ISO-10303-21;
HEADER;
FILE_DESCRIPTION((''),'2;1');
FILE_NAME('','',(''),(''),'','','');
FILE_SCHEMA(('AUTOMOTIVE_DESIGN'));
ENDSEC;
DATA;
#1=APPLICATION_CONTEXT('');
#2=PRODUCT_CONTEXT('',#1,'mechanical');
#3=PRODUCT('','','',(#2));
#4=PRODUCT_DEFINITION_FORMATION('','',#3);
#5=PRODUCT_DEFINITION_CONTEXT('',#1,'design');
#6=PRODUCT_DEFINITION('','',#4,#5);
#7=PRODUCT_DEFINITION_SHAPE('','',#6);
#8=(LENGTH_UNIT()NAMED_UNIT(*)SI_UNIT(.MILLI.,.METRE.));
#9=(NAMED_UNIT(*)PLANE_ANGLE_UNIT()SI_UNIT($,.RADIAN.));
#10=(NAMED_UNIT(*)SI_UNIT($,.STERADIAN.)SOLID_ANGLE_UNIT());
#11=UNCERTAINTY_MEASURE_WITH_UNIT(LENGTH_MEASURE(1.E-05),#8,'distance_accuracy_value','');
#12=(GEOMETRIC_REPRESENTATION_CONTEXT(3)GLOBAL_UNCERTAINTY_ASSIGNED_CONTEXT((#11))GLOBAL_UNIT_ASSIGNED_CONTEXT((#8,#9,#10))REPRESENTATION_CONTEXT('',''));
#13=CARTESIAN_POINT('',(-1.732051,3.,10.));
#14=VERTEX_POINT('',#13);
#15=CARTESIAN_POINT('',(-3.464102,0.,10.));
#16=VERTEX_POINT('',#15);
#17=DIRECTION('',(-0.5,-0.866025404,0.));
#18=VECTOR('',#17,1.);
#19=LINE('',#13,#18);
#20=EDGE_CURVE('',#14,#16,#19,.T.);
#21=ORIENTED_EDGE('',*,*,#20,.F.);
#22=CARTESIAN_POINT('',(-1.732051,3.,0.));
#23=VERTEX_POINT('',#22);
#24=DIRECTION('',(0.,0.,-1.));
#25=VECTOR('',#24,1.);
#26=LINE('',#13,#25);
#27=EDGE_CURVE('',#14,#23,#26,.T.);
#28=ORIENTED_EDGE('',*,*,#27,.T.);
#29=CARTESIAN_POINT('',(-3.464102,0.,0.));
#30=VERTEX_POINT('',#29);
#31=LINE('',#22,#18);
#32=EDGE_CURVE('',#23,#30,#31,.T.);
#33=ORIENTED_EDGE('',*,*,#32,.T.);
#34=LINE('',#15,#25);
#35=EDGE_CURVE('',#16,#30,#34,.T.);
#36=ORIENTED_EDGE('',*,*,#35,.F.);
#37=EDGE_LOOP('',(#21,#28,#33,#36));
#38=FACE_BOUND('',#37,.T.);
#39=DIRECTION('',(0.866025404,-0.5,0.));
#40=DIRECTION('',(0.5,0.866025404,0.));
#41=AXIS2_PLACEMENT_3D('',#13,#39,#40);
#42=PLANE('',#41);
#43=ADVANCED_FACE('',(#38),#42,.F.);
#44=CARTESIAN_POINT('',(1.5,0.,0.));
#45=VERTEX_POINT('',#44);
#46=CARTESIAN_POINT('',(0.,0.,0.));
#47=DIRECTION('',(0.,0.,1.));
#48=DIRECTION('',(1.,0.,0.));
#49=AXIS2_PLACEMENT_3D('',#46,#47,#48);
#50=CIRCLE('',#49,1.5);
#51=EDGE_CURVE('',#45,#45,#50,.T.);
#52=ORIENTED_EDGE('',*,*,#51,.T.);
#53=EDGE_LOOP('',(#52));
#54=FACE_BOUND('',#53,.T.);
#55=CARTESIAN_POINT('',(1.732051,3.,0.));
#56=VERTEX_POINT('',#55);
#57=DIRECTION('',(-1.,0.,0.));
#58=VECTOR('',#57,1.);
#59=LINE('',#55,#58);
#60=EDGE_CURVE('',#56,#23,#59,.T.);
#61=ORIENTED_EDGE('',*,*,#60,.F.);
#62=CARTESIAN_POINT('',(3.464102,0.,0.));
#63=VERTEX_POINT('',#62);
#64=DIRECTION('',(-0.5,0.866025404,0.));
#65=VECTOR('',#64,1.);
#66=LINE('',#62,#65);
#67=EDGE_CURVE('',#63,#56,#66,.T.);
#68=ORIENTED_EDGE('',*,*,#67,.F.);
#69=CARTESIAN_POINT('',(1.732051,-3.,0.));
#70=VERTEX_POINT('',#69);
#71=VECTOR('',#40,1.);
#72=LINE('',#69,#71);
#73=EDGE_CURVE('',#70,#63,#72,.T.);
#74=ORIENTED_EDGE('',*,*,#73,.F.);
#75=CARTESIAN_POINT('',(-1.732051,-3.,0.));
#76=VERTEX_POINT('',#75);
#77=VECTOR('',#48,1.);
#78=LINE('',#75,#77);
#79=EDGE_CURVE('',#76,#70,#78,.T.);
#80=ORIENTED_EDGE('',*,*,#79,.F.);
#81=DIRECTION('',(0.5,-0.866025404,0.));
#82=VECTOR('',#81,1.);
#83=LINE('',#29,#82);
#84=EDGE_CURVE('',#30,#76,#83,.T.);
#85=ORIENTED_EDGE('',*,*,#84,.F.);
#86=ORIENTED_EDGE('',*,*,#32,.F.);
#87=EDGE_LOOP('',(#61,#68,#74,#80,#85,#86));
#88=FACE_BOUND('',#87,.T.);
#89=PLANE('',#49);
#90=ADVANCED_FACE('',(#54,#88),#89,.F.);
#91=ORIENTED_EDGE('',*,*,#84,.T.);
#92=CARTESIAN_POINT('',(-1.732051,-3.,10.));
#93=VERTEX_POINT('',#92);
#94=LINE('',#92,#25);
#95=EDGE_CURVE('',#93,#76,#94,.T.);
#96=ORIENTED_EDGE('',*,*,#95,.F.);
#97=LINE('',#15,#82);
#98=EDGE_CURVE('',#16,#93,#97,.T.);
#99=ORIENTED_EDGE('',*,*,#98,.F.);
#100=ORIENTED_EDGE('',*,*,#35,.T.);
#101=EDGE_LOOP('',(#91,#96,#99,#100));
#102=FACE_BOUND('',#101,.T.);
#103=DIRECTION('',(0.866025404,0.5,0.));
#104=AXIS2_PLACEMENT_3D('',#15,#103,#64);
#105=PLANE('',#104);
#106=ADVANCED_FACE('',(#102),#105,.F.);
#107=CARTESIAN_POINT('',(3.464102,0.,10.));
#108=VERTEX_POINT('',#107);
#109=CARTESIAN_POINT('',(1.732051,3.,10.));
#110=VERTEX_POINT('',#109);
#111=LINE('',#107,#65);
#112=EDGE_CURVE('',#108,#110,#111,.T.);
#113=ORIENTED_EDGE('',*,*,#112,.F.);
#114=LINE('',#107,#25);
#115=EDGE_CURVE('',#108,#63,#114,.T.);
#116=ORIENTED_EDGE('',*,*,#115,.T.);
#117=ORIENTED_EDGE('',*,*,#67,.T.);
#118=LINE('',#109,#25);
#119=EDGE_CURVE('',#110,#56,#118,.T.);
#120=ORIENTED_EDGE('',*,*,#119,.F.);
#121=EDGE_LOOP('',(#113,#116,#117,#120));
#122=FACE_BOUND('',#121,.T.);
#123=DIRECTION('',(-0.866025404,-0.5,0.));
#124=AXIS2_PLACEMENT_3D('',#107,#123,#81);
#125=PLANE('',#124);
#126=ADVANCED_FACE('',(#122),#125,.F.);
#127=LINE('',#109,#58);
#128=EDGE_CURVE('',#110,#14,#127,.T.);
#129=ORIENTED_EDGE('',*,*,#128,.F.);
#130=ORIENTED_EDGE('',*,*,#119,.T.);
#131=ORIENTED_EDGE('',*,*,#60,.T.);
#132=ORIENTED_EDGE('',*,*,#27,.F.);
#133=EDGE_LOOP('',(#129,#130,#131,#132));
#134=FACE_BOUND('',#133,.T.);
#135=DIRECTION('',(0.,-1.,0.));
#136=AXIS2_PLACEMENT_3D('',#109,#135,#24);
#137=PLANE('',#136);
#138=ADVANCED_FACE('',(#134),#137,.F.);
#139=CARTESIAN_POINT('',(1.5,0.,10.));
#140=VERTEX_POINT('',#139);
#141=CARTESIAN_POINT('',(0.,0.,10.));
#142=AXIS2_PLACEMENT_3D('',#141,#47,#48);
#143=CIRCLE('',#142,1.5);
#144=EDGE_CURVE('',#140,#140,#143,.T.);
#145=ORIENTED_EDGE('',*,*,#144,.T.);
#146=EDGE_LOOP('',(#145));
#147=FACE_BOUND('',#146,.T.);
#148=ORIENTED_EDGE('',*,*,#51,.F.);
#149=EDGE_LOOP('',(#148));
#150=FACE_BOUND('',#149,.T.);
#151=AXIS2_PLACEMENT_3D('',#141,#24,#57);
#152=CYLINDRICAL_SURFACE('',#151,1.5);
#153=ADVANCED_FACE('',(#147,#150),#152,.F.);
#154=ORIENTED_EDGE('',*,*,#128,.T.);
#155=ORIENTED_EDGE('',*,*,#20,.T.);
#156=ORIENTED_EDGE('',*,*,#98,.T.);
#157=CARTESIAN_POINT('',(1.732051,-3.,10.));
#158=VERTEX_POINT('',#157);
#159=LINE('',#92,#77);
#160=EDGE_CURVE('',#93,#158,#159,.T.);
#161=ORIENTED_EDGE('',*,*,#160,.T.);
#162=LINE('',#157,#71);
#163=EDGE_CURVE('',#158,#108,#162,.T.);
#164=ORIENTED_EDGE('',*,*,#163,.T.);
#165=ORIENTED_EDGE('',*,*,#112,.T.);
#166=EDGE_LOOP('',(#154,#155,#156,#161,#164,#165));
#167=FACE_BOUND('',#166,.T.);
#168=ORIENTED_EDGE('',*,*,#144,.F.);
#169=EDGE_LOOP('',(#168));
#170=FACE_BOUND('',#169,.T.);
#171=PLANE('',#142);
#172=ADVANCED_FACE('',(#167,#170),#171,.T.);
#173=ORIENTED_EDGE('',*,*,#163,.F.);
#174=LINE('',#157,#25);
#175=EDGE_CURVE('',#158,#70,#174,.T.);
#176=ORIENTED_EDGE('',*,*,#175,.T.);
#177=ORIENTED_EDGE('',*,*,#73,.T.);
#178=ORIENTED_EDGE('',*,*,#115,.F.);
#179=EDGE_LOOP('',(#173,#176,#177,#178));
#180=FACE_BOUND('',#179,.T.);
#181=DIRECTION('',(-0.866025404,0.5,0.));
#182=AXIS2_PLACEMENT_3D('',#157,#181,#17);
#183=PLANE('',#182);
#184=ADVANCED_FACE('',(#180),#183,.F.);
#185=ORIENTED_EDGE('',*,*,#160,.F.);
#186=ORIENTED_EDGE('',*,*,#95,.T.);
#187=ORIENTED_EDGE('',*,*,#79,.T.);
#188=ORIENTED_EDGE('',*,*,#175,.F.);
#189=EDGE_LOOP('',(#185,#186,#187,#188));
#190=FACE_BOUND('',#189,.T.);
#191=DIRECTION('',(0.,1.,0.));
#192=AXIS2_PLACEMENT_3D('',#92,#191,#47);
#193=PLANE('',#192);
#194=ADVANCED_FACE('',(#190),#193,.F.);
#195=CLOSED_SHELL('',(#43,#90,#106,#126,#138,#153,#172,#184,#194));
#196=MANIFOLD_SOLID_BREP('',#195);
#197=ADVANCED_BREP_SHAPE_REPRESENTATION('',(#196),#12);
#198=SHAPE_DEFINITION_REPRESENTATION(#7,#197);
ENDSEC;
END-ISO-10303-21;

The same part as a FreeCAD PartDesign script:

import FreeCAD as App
import Part
import Sketcher
Q = App.Units.Quantity


def add_polygon(sketch, points):
    """Adds a closed chain of lines whose ends are joined by coincident constraints."""
    first, n = sketch.GeometryCount, len(points)
    for a, b in zip(points, points[1:] + points[:1]):
        sketch.addGeometry(Part.LineSegment(App.Vector(*a, 0), App.Vector(*b, 0)), False)
    for i in range(n):
        sketch.addConstraint(Sketcher.Constraint("Coincident", first + i, 2, first + (i + 1) % n, 1))

doc = App.newDocument("Part")
body = doc.addObject("PartDesign::Body", "Body")

sketch1 = doc.addObject("Sketcher::SketchObject", "Sketch")
body.addObject(sketch1)
sketch1.AttachmentSupport = (doc.XY_Plane, [""])
sketch1.MapMode = "FlatFace"
add_polygon(sketch1, [(3.464102, 0), (1.732051, 3), (-1.732051, 3), (-3.464102, 0), (-1.732051, -3), (1.732051, -3)])
sketch1.addGeometry(Part.Circle(App.Vector(0, 0, 0), App.Vector(0, 0, 1), 1.5), False)
sketch1.addConstraint([
    Sketcher.Constraint("Horizontal", 1),
    Sketcher.Constraint("Horizontal", 4),
    Sketcher.Constraint("Coincident", 6, 3, -1, 1),
    Sketcher.Constraint("Symmetric", 0, 2, 3, 2, -1, 1),
    Sketcher.Constraint("Symmetric", 2, 2, 5, 2, -1, 1),
    Sketcher.Constraint("PointOnObject", 2, 2, -1),
    Sketcher.Constraint("Parallel", 2, 5),
    Sketcher.Constraint("Vertical", 1, 2, 3, 2),
    Sketcher.Constraint("Diameter", 6, Q("3 mm")),
    Sketcher.Constraint("Angle", 0, Q("120 deg")),
    Sketcher.Constraint("DistanceY", -1, 1, 0, 2, Q("3 mm")),
    Sketcher.Constraint("DistanceX", 1, 2, 1, 1, Q("3.464102 mm")),
])
pad1 = doc.addObject("PartDesign::Pad", "Pad")
body.addObject(pad1)
pad1.Profile = sketch1
pad1.Length = 10

doc.recompute()
